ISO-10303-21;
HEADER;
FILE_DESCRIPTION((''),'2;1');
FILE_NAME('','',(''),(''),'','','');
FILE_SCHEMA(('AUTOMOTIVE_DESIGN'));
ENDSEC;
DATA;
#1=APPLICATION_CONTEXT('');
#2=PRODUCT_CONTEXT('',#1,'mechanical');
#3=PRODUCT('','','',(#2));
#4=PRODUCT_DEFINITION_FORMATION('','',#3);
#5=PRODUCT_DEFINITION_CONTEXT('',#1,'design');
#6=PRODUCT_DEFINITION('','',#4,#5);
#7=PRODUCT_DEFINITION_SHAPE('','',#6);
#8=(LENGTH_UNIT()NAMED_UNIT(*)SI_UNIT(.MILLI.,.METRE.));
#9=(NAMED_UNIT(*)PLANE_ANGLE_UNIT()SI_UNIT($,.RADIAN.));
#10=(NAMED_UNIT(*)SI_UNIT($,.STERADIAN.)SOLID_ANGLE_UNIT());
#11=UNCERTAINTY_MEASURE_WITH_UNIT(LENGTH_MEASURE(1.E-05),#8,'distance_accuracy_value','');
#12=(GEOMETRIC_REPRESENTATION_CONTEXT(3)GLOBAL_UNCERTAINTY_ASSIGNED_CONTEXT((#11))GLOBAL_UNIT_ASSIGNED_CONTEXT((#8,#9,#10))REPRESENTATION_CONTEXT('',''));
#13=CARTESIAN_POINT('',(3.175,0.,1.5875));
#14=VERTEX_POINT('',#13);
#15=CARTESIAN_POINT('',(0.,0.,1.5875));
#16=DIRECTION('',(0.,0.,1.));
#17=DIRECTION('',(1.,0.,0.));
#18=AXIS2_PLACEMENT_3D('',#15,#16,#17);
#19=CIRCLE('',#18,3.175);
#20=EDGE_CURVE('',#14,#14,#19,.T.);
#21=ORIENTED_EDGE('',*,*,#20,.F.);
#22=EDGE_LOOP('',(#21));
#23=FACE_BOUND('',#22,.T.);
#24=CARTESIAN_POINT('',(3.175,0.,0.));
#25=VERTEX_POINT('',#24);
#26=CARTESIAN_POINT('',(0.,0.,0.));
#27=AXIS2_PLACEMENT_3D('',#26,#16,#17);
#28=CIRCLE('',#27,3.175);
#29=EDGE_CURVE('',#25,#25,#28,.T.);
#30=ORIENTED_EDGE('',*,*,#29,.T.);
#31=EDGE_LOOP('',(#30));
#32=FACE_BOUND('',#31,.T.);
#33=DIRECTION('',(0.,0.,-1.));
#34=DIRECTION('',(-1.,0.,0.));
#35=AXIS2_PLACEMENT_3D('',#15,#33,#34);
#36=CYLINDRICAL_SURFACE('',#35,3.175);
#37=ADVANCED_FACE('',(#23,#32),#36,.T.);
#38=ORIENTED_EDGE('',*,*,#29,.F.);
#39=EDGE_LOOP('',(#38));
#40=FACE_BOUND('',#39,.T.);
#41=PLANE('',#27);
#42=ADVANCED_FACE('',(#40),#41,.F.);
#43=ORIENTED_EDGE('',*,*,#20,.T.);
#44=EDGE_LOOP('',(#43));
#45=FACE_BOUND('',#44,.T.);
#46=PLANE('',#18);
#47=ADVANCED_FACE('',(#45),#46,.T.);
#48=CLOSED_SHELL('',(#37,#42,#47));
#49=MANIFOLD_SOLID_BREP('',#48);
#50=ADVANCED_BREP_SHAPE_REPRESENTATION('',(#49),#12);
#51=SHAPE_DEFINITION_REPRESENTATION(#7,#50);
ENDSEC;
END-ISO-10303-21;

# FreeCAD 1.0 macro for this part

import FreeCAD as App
import Part
import Sketcher
from FreeCAD import Vector
Q = App.Units.Quantity

doc = App.newDocument("Part")
body = doc.addObject("PartDesign::Body", "Body")

# Sketch on XY plane
sketch1 = body.newObject("Sketcher::SketchObject", "Sketch")
sketch1.AttachmentSupport = (doc.getObject("XY_Plane"), [""])
sketch1.MapMode = "FlatFace"
sketch1.addGeometry(Part.Circle(Vector(0, 0, 0), Vector(0, 0, 1), 3.2), False)
sketch1.addConstraint(Sketcher.Constraint("Coincident", 0, 3, -1, 1))
sketch1.addConstraint(Sketcher.Constraint("Diameter", 0, Q("0.25 in")))
pad1 = body.newObject("PartDesign::Pad", "Pad")
pad1.Profile = sketch1
pad1.Length = Q("0.0625 in")

doc.recompute()
